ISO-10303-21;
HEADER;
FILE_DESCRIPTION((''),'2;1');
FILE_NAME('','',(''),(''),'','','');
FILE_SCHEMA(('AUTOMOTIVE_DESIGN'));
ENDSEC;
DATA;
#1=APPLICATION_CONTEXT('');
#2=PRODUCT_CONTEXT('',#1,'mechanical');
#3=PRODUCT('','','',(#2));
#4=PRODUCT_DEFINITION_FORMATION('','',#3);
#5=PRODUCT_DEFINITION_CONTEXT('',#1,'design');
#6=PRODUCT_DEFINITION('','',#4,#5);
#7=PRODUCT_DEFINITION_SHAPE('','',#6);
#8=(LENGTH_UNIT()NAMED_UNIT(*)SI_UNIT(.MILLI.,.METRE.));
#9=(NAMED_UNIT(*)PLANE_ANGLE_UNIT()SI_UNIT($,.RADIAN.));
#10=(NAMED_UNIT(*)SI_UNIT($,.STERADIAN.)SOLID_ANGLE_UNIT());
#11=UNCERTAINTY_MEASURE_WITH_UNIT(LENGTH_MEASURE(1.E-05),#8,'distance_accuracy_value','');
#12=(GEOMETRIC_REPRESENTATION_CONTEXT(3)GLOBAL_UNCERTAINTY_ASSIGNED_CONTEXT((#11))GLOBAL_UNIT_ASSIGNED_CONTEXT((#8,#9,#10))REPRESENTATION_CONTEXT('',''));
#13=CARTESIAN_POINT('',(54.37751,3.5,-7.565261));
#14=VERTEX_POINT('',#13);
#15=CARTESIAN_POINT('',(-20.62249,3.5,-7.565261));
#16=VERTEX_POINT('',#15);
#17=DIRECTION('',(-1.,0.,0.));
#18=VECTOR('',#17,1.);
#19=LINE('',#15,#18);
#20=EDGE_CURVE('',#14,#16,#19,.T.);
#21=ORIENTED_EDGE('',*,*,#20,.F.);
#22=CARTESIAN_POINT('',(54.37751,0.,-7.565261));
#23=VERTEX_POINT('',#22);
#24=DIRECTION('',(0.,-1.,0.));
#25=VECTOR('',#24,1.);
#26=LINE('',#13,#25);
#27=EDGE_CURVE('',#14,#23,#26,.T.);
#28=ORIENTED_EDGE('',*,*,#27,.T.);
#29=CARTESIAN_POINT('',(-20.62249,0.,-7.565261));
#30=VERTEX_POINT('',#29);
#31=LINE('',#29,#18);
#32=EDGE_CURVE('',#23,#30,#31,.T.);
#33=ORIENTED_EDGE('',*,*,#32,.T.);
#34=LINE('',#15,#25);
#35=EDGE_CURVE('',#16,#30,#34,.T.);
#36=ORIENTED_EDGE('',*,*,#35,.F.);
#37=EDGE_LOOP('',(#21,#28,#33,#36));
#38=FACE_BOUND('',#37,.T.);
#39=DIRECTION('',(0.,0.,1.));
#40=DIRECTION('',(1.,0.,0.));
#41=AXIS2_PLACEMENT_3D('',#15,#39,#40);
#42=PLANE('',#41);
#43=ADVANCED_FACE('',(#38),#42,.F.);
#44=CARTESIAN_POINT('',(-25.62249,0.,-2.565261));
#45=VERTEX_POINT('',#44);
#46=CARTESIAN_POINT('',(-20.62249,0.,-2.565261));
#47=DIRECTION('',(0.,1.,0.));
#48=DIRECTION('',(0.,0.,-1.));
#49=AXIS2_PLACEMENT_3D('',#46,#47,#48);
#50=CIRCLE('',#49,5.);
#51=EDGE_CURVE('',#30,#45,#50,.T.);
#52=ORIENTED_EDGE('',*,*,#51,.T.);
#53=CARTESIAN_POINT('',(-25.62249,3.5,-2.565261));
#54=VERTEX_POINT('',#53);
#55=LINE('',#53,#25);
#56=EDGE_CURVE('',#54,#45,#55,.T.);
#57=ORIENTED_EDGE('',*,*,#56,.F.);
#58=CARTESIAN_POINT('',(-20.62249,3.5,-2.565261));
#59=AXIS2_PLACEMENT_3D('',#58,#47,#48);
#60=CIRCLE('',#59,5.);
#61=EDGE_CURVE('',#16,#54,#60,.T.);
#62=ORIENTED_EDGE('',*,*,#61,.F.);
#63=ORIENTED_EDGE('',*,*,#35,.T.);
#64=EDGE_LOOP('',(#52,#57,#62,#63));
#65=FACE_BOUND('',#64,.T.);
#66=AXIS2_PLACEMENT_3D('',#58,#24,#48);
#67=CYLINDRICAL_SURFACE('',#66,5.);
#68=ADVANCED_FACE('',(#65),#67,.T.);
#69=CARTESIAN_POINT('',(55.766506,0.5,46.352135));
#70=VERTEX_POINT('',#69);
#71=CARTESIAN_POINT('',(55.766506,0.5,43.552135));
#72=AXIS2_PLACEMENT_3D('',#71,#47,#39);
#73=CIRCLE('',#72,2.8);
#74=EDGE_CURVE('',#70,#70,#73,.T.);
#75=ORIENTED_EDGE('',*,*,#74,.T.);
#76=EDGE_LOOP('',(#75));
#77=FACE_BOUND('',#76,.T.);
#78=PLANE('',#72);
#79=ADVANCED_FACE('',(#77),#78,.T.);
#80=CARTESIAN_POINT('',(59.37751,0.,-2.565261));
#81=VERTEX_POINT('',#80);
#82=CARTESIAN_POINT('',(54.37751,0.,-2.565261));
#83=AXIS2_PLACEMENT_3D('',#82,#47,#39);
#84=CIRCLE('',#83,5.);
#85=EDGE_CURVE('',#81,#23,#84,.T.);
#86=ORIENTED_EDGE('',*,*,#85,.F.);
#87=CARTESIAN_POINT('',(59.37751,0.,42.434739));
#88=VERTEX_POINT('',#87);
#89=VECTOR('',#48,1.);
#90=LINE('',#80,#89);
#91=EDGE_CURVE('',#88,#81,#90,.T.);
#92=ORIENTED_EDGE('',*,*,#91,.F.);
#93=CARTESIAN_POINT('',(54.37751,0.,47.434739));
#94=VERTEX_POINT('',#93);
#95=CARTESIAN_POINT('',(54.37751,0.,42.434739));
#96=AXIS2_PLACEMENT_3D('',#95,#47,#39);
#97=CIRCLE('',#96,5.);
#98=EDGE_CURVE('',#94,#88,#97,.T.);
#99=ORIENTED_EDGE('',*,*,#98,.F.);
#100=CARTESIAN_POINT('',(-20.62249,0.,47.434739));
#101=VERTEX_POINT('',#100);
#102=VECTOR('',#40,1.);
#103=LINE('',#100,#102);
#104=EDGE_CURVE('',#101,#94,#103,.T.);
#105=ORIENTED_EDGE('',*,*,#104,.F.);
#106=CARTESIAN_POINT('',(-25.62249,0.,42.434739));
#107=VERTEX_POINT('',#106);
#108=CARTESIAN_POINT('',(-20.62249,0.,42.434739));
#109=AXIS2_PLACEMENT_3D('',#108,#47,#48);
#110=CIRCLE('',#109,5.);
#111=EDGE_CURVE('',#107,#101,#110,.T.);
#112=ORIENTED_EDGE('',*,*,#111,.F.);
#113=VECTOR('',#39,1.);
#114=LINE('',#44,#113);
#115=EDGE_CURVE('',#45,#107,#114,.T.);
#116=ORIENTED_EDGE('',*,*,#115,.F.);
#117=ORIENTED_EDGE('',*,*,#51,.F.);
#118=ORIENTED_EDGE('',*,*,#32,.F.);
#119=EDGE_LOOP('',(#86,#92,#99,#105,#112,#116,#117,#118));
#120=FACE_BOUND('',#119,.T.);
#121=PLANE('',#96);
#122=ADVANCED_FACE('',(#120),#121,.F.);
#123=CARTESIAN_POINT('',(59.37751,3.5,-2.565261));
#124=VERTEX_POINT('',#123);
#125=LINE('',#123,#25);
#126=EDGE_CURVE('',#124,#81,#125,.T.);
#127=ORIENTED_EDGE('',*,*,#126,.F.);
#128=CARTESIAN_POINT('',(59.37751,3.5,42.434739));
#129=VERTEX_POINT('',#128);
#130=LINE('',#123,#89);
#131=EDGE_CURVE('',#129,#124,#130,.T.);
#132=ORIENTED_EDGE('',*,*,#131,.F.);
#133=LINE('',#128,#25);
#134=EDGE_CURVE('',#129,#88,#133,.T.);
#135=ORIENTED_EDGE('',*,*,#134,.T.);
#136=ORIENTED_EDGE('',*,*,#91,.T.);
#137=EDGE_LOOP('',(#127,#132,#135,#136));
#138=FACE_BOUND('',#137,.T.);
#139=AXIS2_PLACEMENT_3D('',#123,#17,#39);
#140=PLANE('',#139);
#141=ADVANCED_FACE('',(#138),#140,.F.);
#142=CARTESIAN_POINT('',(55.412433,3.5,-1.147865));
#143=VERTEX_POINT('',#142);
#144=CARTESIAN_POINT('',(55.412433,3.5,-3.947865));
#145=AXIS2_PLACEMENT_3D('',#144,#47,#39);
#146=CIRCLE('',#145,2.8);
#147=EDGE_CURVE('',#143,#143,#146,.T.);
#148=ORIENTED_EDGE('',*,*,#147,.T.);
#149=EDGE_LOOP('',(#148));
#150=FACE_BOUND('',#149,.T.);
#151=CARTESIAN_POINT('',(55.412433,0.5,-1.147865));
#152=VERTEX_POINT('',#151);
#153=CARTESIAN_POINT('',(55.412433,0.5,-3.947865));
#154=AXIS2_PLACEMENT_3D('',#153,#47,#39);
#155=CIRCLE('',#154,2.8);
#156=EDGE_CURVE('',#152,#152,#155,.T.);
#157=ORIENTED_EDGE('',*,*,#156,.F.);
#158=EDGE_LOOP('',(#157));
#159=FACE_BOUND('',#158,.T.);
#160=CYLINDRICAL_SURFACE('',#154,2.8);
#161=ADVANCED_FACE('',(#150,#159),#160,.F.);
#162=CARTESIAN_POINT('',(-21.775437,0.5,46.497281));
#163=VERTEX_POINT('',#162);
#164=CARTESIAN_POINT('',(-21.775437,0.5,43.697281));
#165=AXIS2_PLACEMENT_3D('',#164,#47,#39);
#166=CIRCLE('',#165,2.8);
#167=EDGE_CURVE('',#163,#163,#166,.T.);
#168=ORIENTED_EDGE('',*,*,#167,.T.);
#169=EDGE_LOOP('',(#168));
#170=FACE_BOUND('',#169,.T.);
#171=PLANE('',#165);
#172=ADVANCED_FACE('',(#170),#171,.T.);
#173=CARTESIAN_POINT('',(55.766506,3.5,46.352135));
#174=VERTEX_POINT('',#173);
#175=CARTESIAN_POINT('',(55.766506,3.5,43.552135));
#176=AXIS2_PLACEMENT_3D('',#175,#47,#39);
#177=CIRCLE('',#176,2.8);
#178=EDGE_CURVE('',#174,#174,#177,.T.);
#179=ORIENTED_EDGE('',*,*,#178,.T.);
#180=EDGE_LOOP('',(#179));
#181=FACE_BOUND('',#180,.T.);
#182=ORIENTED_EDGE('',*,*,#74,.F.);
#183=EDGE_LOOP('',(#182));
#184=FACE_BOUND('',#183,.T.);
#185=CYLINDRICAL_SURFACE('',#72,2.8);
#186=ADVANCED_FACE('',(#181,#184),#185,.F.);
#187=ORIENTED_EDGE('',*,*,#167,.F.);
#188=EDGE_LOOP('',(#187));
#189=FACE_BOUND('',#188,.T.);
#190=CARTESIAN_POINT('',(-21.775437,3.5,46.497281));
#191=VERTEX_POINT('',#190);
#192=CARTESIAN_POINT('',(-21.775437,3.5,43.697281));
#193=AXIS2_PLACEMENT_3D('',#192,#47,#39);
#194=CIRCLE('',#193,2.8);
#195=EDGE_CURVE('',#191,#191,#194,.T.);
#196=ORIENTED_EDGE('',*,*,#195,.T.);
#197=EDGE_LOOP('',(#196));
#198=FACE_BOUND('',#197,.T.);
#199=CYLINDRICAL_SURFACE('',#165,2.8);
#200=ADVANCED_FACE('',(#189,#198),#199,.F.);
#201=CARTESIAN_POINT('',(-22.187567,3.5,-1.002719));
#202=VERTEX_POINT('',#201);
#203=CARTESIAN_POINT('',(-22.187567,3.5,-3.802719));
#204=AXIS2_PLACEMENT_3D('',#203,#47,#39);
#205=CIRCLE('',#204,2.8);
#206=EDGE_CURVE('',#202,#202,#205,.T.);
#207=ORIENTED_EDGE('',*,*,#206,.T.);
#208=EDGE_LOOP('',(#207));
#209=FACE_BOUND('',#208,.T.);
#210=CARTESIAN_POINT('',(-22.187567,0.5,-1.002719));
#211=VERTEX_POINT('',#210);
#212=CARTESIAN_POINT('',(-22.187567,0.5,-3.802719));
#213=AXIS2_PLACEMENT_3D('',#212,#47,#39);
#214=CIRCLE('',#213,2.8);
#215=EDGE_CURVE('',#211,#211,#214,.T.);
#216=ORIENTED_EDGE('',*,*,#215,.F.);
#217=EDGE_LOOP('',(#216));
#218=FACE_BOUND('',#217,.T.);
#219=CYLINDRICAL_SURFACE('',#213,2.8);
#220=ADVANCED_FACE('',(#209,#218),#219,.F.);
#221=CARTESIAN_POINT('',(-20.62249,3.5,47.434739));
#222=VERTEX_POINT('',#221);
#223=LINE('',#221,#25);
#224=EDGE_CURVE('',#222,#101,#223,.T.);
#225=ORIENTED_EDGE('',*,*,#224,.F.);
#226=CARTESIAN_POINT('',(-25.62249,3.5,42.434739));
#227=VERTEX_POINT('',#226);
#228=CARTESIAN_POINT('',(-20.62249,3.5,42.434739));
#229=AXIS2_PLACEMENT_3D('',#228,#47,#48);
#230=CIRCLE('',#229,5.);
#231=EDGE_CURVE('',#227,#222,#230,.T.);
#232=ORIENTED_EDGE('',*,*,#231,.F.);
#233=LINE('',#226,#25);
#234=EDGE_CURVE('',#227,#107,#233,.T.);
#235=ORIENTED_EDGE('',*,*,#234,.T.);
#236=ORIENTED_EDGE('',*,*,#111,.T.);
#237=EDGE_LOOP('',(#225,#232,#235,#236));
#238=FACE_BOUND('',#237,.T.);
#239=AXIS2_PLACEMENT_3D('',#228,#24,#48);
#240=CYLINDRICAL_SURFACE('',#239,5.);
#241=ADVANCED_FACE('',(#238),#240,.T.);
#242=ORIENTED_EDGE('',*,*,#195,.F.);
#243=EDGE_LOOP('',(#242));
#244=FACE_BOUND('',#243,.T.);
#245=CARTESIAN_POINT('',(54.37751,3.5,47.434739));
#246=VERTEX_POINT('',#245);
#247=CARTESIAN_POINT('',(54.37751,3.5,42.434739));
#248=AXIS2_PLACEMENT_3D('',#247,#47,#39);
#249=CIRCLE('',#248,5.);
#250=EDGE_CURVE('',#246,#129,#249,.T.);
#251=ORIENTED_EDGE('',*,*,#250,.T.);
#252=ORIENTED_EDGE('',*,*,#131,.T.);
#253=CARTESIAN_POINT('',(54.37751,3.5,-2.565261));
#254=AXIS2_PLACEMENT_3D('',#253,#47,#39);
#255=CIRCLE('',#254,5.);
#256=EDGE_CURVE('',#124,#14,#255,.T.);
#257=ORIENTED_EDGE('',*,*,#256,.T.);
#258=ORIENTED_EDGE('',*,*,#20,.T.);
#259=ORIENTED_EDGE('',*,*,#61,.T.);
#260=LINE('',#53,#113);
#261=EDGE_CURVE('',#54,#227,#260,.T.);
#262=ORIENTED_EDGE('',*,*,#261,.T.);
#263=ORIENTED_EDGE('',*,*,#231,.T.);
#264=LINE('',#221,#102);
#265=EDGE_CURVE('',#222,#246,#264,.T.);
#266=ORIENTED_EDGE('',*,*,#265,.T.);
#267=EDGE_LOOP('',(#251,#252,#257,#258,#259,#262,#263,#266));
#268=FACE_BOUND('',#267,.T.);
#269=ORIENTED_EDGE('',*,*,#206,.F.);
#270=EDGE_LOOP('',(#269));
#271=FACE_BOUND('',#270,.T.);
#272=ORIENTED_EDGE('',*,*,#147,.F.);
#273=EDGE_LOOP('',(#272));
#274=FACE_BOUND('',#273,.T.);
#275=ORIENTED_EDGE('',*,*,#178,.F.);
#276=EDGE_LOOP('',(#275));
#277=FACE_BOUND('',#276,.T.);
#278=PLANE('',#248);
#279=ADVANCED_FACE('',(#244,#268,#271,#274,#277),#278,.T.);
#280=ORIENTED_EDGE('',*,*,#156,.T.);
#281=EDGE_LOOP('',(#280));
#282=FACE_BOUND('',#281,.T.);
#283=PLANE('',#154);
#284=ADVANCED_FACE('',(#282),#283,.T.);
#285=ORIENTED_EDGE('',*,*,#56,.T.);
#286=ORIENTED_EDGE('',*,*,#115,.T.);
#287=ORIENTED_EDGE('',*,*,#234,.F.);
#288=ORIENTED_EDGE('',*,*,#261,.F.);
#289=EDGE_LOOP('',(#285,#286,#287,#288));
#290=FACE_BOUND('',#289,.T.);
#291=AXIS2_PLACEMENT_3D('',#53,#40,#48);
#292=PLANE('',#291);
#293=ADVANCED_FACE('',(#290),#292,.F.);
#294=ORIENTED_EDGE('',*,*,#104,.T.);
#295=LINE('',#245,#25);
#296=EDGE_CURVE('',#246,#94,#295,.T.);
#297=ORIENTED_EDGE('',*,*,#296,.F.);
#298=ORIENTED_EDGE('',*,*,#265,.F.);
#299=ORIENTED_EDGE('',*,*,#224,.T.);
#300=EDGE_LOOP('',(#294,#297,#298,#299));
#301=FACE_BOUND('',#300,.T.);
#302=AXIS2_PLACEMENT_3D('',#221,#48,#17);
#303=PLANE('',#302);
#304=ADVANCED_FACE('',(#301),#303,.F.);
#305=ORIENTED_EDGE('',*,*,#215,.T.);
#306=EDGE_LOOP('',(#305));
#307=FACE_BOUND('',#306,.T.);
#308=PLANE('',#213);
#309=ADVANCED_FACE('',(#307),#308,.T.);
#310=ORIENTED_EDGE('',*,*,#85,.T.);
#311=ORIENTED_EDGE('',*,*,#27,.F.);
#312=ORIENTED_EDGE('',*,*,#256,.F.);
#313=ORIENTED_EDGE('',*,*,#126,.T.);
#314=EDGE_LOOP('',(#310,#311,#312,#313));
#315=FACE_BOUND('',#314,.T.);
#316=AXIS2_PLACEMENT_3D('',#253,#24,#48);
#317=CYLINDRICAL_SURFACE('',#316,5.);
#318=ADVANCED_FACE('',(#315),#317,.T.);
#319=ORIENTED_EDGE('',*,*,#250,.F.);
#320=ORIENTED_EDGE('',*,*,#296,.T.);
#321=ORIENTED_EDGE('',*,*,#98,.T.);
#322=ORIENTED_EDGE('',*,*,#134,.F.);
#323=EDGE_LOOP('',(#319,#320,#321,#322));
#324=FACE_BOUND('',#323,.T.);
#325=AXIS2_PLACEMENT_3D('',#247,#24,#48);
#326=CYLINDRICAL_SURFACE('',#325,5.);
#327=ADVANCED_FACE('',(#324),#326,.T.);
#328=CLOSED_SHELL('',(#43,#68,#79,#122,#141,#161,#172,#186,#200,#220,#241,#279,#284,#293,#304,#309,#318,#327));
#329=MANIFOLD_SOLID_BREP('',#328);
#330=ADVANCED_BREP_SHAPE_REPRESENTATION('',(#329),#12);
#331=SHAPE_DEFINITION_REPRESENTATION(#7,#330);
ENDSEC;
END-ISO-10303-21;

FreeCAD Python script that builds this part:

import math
import FreeCAD as App
import Part
import Sketcher
from FreeCAD import Vector

doc = App.newDocument("Part")
body = doc.addObject("PartDesign::Body", "Body")

sketch1 = doc.addObject("Sketcher::SketchObject", "Sketch")
body.addObject(sketch1)
sketch1.AttachmentSupport = (doc.XZ_Plane, [""])
sketch1.MapMode = "FlatFace"
sketch1.addGeometry([
    Part.LineSegment(Vector(54.37751, -7.565261, 0), Vector(-20.62249, -7.565261, 0)),
    Part.ArcOfCircle(Part.Circle(Vector(-20.62249, -2.565261, 0), Vector(0, 0, 1), 5), math.radians(180), math.radians(270)),
    Part.LineSegment(Vector(-25.62249, -2.565261, 0), Vector(-25.62249, 42.434739, 0)),
    Part.ArcOfCircle(Part.Circle(Vector(-20.62249, 42.434739, 0), Vector(0, 0, 1), 5), math.radians(90), math.radians(180)),
    Part.LineSegment(Vector(-20.62249, 47.434739, 0), Vector(54.37751, 47.434739, 0)),
    Part.ArcOfCircle(Part.Circle(Vector(54.37751, 42.434739, 0), Vector(0, 0, 1), 5), math.radians(0), math.radians(90)),
    Part.LineSegment(Vector(59.37751, 42.434739, 0), Vector(59.37751, -2.565261, 0)),
    Part.ArcOfCircle(Part.Circle(Vector(54.37751, -2.565261, 0), Vector(0, 0, 1), 5), math.radians(-90), math.radians(0)),
], False)
sketch1.addConstraint([
    Sketcher.Constraint("Tangent", 0, 2, 1, 2),
    Sketcher.Constraint("Tangent", 1, 1, 2, 1),
    Sketcher.Constraint("Tangent", 2, 2, 3, 2),
    Sketcher.Constraint("Tangent", 3, 1, 4, 1),
    Sketcher.Constraint("Tangent", 4, 2, 5, 2),
    Sketcher.Constraint("Tangent", 5, 1, 6, 1),
    Sketcher.Constraint("Tangent", 6, 2, 7, 2),
    Sketcher.Constraint("Tangent", 7, 1, 0, 1),
    Sketcher.Constraint("Horizontal", 0),
    Sketcher.Constraint("Vertical", 2),
    Sketcher.Constraint("Horizontal", 4),
    Sketcher.Constraint("Vertical", 6),
    Sketcher.Constraint("Equal", 1, 3),
    Sketcher.Constraint("Equal", 3, 5),
    Sketcher.Constraint("Equal", 5, 7),
    Sketcher.Constraint("Radius", 1, 5.0),
    Sketcher.Constraint("DistanceX", 0, 2, 0, 1, 75.0),
    Sketcher.Constraint("DistanceY", 2, 1, 2, 2, 45.0),
    Sketcher.Constraint("DistanceX", 1, 3, -1, 1, 20.62249),
    Sketcher.Constraint("DistanceY", 1, 3, -1, 1, 2.565261),
])
pad1 = doc.addObject("PartDesign::Pad", "Pad")
body.addObject(pad1)
pad1.Profile = sketch1
pad1.Length = 3.5
pad1.Reversed = True

sketch2 = doc.addObject("Sketcher::SketchObject", "Sketch001")
body.addObject(sketch2)
sketch2.AttachmentSupport = (doc.XZ_Plane, [""])
sketch2.MapMode = "FlatFace"
sketch2.AttachmentOffset = App.Placement(Vector(0, 0, -3.5), App.Rotation())
sketch2.addGeometry([
    Part.Circle(Vector(-22.187567, -3.802719, 0), Vector(0, 0, 1), 2.8),
    Part.Circle(Vector(-21.775437, 43.697281, 0), Vector(0, 0, 1), 2.8),
    Part.Circle(Vector(55.412433, -3.947865, 0), Vector(0, 0, 1), 2.8),
    Part.Circle(Vector(55.766506, 43.552135, 0), Vector(0, 0, 1), 2.8),
], False)
sketch2.addConstraint([
    Sketcher.Constraint("Equal", 0, 1),
    Sketcher.Constraint("Equal", 1, 2),
    Sketcher.Constraint("Equal", 2, 3),
    Sketcher.Constraint("Diameter", 0, 5.6),
    Sketcher.Constraint("DistanceY", 0, 3, 1, 3, 47.5),
    Sketcher.Constraint("DistanceX", 0, 3, 2, 3, 77.6),
    Sketcher.Constraint("DistanceY", 2, 3, 3, 3, 47.5),
    Sketcher.Constraint("DistanceY", 0, 3, -1, 1, 3.802719),
    Sketcher.Constraint("DistanceX", 0, 3, 1, 3, 0.41213),
    Sketcher.Constraint("DistanceX", 0, 3, -1, 1, 22.187567),
    Sketcher.Constraint("DistanceY", 2, 3, -1, 1, 3.947865),
    Sketcher.Constraint("DistanceX", -1, 1, 3, 3, 55.766506),
])
pocket1 = doc.addObject("PartDesign::Pocket", "Pocket")
body.addObject(pocket1)
pocket1.Profile = sketch2
pocket1.Length = 3
pocket1.Reversed = True

doc.recompute()
